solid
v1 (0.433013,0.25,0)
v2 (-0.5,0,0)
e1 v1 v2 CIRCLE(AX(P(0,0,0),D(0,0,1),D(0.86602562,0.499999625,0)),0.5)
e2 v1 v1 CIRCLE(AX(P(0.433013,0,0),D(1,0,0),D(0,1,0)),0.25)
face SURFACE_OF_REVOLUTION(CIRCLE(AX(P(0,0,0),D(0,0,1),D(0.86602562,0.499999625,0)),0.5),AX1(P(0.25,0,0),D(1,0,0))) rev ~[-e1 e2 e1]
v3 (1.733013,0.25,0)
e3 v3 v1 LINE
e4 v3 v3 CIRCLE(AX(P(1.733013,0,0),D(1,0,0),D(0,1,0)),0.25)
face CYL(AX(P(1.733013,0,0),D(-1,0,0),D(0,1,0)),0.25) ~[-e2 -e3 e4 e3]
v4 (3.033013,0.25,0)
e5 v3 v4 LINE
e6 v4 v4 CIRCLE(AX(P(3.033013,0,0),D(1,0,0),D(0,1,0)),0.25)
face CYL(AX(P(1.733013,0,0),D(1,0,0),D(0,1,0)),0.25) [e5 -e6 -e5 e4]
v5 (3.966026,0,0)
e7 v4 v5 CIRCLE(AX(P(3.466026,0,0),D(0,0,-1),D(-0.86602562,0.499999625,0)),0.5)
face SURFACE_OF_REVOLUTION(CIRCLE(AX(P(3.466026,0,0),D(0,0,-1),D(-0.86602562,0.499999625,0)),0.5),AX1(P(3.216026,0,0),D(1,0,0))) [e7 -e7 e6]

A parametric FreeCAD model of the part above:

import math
import FreeCAD as App
import Part
import Sketcher
from FreeCAD import Vector

doc = App.newDocument("Part")
body = doc.addObject("PartDesign::Body", "Body")

sketch1 = doc.addObject("Sketcher::SketchObject", "Sketch")
body.addObject(sketch1)
sketch1.AttachmentSupport = (doc.XY_Plane, [""])
sketch1.MapMode = "FlatFace"
sketch1.addGeometry([
    Part.LineSegment(Vector(1.73, 0.25, 0), Vector(0.43, 0.25, 0)),
    Part.ArcOfCircle(Part.Circle(Vector(0, 0, 0), Vector(0, 0, 1), 0.5), math.radians(30), math.radians(180)),
    Part.LineSegment(Vector(-0.5, 0, 0), Vector(1.73, 0, 0)),
    Part.LineSegment(Vector(1.73, 0, 0), Vector(1.73, 0.25, 0)),
], False)
sketch1.addConstraint([
    Sketcher.Constraint("Coincident", 0, 2, 1, 1),
    Sketcher.Constraint("Coincident", 1, 2, 2, 1),
    Sketcher.Constraint("Coincident", 2, 2, 3, 1),
    Sketcher.Constraint("Coincident", 3, 2, 0, 1),
    Sketcher.Constraint("Horizontal", 0),
    Sketcher.Constraint("Horizontal", 2),
    Sketcher.Constraint("Vertical", 3),
    Sketcher.Constraint("Coincident", 1, 3, -1, 1),
    Sketcher.Constraint("PointOnObject", 1, 2, -1),
    Sketcher.Constraint("Radius", 1, 0.5),
    Sketcher.Constraint("DistanceX", 0, 2, 0, 1, 1.3),
    Sketcher.Constraint("DistanceY", 3, 1, 3, 2, 0.25),
])
revolution = doc.addObject("PartDesign::Revolution", "Revolution")
body.addObject(revolution)
revolution.Profile = sketch1
revolution.ReferenceAxis = (sketch1, ["H_Axis"])
revolution.Angle = 360
body2 = doc.addObject("PartDesign::Body", "Body001")
doc.recompute()

body2.BaseFeature = body
doc.recompute()

mirroring = doc.addObject("Part::Mirroring", "Mirroring")
mirroring.Source = body
mirroring.Base = Vector(1.733013, 0, 0)
mirroring.Normal = Vector(1, 0, 0)
body3 = doc.addObject("PartDesign::Body", "Body002")
body3.BaseFeature = mirroring
boolean = doc.addObject("PartDesign::Boolean", "Boolean")
body2.addObject(boolean)
boolean.Type = "Fuse"
boolean.addObjects([body3])
doc.recompute()
mirroring.Visibility = False

doc.recompute()
